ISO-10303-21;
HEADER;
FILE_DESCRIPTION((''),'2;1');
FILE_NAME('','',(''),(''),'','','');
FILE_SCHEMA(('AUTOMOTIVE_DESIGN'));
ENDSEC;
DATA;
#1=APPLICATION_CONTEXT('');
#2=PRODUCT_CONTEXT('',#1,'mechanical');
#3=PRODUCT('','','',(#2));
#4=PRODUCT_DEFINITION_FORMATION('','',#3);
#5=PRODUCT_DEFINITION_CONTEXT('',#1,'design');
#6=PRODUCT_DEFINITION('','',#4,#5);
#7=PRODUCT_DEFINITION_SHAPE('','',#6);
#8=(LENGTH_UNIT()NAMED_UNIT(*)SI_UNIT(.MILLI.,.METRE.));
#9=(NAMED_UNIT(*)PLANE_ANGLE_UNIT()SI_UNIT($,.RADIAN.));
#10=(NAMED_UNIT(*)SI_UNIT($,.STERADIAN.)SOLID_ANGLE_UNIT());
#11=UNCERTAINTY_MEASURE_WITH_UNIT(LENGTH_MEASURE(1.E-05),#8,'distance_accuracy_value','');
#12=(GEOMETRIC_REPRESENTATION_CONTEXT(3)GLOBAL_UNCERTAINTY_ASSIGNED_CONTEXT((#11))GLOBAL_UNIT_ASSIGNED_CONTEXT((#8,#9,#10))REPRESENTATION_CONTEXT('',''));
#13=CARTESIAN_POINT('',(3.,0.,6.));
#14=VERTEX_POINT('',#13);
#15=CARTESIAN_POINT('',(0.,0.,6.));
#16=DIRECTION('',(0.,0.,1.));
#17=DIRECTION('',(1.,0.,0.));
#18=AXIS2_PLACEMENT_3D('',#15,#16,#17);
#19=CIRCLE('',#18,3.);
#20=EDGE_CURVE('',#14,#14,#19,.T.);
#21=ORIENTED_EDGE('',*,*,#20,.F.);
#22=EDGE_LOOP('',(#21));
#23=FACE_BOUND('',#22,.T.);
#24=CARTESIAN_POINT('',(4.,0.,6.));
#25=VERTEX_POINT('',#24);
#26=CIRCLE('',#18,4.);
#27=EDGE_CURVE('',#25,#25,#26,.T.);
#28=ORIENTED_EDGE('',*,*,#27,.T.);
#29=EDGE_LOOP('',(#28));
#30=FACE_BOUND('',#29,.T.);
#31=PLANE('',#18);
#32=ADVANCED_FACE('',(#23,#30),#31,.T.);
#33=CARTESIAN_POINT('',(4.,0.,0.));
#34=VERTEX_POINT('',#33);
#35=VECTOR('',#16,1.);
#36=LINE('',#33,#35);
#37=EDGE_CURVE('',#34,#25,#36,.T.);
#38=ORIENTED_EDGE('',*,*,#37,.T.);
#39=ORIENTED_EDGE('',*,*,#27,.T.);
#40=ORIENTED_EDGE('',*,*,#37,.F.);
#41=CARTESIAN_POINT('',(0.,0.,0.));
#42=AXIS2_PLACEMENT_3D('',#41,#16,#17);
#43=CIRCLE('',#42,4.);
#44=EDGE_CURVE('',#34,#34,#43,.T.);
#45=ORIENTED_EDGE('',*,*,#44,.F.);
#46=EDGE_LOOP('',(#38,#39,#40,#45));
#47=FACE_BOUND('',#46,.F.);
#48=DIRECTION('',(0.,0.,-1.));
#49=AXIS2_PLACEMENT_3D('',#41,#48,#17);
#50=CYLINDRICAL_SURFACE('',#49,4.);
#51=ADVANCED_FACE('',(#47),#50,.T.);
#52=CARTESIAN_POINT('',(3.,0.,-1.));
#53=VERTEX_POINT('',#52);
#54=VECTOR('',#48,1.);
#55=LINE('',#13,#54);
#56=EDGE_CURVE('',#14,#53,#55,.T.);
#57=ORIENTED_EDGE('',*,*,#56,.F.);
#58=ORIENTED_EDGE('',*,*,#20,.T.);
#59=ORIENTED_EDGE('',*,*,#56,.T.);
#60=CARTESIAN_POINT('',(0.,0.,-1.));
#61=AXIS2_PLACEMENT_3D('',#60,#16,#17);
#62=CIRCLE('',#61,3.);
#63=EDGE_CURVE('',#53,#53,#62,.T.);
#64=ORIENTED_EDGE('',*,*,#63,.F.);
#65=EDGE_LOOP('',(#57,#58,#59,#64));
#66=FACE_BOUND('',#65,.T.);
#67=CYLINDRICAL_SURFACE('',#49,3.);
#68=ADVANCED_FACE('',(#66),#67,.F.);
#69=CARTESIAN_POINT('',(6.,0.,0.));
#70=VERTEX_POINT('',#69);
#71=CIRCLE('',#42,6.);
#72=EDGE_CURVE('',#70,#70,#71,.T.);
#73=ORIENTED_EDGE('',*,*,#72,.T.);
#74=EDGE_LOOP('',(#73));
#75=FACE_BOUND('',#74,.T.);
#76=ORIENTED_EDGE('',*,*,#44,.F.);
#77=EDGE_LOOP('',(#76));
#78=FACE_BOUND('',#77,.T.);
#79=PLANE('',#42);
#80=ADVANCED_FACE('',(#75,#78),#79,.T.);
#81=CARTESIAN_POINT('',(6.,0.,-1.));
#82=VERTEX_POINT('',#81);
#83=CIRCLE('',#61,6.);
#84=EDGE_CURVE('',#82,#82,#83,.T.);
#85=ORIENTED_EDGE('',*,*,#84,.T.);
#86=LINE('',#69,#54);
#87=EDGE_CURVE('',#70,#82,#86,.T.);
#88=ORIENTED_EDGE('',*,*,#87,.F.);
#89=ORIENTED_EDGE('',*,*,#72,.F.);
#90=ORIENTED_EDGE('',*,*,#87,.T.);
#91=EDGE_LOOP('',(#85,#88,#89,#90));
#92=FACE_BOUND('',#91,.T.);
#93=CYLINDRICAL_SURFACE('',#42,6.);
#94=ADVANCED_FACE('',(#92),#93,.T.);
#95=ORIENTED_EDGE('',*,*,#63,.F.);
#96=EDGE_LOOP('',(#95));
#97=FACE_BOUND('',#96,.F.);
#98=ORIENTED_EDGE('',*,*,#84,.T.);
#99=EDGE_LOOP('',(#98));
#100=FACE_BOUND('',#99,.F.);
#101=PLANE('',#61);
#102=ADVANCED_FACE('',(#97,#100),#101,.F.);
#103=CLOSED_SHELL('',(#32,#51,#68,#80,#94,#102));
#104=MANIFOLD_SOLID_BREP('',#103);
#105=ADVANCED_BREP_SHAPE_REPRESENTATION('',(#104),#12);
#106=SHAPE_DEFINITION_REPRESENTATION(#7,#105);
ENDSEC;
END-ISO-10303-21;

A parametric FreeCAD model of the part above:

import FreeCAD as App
import Part
import Sketcher
Q = App.Units.Quantity

doc = App.newDocument("Part")
params = doc.addObject("Spreadsheet::Sheet", "Params")
for row, (alias, value) in enumerate([
    ("sketch1_diameter", "8 mm"),
    ("sketch1_diameter2", "6 mm"),
    ("pad1_length", "6 mm"),
    ("sketch2_diameter", "12 mm"),
    ("sketch2_diameter2", "6 mm"),
    ("pad2_length", "1 mm"),
], start=1):
    params.set(f"A{row}", alias)
    params.set(f"B{row}", "=" + value)
    params.setAlias(f"B{row}", alias)

body = doc.addObject("PartDesign::Body", "Body")

sketch1 = doc.addObject("Sketcher::SketchObject", "Sketch")
body.addObject(sketch1)
sketch1.AttachmentSupport = (doc.XY_Plane, [""])
sketch1.MapMode = "FlatFace"
sketch1.addGeometry([
    Part.Circle(App.Vector(0, 0, 0), App.Vector(0, 0, 1), 4),
    Part.Circle(App.Vector(0, 0, 0), App.Vector(0, 0, 1), 3),
], False)
sketch1.addConstraint([
    Sketcher.Constraint("Coincident", 0, 3, -1, 1),
    Sketcher.Constraint("Coincident", 1, 3, -1, 1),
    Sketcher.Constraint("Diameter", 0, Q("8 mm")),
    Sketcher.Constraint("Diameter", 1, Q("6 mm")),
])
sketch1.setExpression("Constraints[2]", "Params.sketch1_diameter")
sketch1.setExpression("Constraints[3]", "Params.sketch1_diameter2")
pad1 = doc.addObject("PartDesign::Pad", "Pad")
body.addObject(pad1)
pad1.Profile = sketch1
pad1.setExpression("Length", "Params.pad1_length")

sketch2 = doc.addObject("Sketcher::SketchObject", "Sketch001")
body.addObject(sketch2)
sketch2.AttachmentSupport = (doc.XY_Plane, [""])
sketch2.MapMode = "FlatFace"
sketch2.addGeometry([
    Part.Circle(App.Vector(0, 0, 0), App.Vector(0, 0, 1), 6),
    Part.Circle(App.Vector(0, 0, 0), App.Vector(0, 0, 1), 3),
], False)
sketch2.addConstraint([
    Sketcher.Constraint("Coincident", 0, 3, -1, 1),
    Sketcher.Constraint("Coincident", 1, 3, -1, 1),
    Sketcher.Constraint("Diameter", 0, Q("12 mm")),
    Sketcher.Constraint("Diameter", 1, Q("6 mm")),
])
sketch2.setExpression("Constraints[2]", "Params.sketch2_diameter")
sketch2.setExpression("Constraints[3]", "Params.sketch2_diameter2")
pad2 = doc.addObject("PartDesign::Pad", "Pad001")
body.addObject(pad2)
pad2.Profile = sketch2
pad2.setExpression("Length", "Params.pad2_length")
pad2.Reversed = True

doc.recompute()
